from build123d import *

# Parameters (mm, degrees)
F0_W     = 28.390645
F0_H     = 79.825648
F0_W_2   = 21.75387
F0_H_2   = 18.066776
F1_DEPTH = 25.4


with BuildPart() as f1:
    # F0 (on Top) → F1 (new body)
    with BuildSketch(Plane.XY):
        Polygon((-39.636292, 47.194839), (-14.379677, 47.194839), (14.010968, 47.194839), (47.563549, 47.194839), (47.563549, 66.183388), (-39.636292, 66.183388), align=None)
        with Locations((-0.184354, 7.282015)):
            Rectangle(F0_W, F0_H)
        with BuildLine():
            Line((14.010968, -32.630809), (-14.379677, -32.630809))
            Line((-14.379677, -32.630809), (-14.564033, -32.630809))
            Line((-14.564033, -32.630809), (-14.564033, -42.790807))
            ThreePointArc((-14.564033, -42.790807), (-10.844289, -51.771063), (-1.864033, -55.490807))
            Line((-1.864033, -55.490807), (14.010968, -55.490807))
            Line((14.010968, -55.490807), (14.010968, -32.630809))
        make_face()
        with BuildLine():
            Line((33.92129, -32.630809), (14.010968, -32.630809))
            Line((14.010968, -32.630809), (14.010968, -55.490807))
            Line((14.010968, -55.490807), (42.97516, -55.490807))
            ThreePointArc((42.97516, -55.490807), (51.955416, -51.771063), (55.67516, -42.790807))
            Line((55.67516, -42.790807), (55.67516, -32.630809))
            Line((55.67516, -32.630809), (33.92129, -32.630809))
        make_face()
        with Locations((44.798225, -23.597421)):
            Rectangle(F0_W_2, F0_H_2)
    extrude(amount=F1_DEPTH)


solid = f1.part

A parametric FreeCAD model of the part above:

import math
import FreeCAD as App
import Part
import Sketcher
from FreeCAD import Vector
Q = App.Units.Quantity

doc = App.newDocument("Part")
params = doc.addObject("Spreadsheet::Sheet", "Params")
for row, (alias, value) in enumerate([
    ("sketch1_radius", "0.5 in"),
    ("sketch1_height", "0.3999999 in"),
    ("pad1_length", "1 in"),
], start=1):
    params.set(f"A{row}", alias)
    params.set(f"B{row}", "=" + value)
    params.setAlias(f"B{row}", alias)

body = doc.addObject("PartDesign::Body", "Body")

# Sketch on XY plane
sketch1 = body.newObject("Sketcher::SketchObject", "Sketch")
sketch1.AttachmentSupport = (doc.getObject("XY_Plane"), [""])
sketch1.MapMode = "FlatFace"
sketch1.addGeometry(Part.LineSegment(Vector(-39.64, 47.19, 0), Vector(-14.38, 47.19, 0)), False)
sketch1.addGeometry(Part.LineSegment(Vector(-14.38, 47.19, 0), Vector(-14.38, -32.63, 0)), False)
sketch1.addGeometry(Part.LineSegment(Vector(-14.38, -32.63, 0), Vector(-14.56, -32.63, 0)), False)
sketch1.addGeometry(Part.LineSegment(Vector(-14.56, -32.63, 0), Vector(-14.56, -42.79, 0)), False)
sketch1.addGeometry(Part.ArcOfCircle(Part.Circle(Vector(-1.86, -42.79, 0), Vector(0, 0, 1), 12.7), math.radians(-180), math.radians(-90)), False)
sketch1.addGeometry(Part.LineSegment(Vector(-1.86, -55.49, 0), Vector(42.98, -55.49, 0)), False)
sketch1.addGeometry(Part.ArcOfCircle(Part.Circle(Vector(42.98, -42.79, 0), Vector(0, 0, 1), 12.7), math.radians(-90), math.radians(0)), False)
sketch1.addGeometry(Part.LineSegment(Vector(55.68, -42.79, 0), Vector(55.68, -14.56, 0)), False)
sketch1.addGeometry(Part.LineSegment(Vector(55.68, -14.56, 0), Vector(33.92, -14.56, 0)), False)
sketch1.addGeometry(Part.LineSegment(Vector(33.92, -14.56, 0), Vector(33.92, -32.63, 0)), False)
sketch1.addGeometry(Part.LineSegment(Vector(33.92, -32.63, 0), Vector(14.01, -32.63, 0)), False)
sketch1.addGeometry(Part.LineSegment(Vector(14.01, -32.63, 0), Vector(14.01, 47.19, 0)), False)
sketch1.addGeometry(Part.LineSegment(Vector(14.01, 47.19, 0), Vector(47.56, 47.19, 0)), False)
sketch1.addGeometry(Part.LineSegment(Vector(47.56, 47.19, 0), Vector(47.56, 66.18, 0)), False)
sketch1.addGeometry(Part.LineSegment(Vector(47.56, 66.18, 0), Vector(-39.64, 66.18, 0)), False)
sketch1.addGeometry(Part.LineSegment(Vector(-39.64, 66.18, 0), Vector(-39.64, 47.19, 0)), False)
sketch1.addConstraint(Sketcher.Constraint("Coincident", 0, 2, 1, 1))
sketch1.addConstraint(Sketcher.Constraint("Coincident", 1, 2, 2, 1))
sketch1.addConstraint(Sketcher.Constraint("Coincident", 2, 2, 3, 1))
sketch1.addConstraint(Sketcher.Constraint("Tangent", 3, 2, 4, 1))
sketch1.addConstraint(Sketcher.Constraint("Tangent", 4, 2, 5, 1))
sketch1.addConstraint(Sketcher.Constraint("Tangent", 5, 2, 6, 1))
sketch1.addConstraint(Sketcher.Constraint("Tangent", 6, 2, 7, 1))
sketch1.addConstraint(Sketcher.Constraint("Coincident", 7, 2, 8, 1))
sketch1.addConstraint(Sketcher.Constraint("Coincident", 8, 2, 9, 1))
sketch1.addConstraint(Sketcher.Constraint("Coincident", 9, 2, 10, 1))
sketch1.addConstraint(Sketcher.Constraint("Coincident", 10, 2, 11, 1))
sketch1.addConstraint(Sketcher.Constraint("Coincident", 11, 2, 12, 1))
sketch1.addConstraint(Sketcher.Constraint("Coincident", 12, 2, 13, 1))
sketch1.addConstraint(Sketcher.Constraint("Coincident", 13, 2, 14, 1))
sketch1.addConstraint(Sketcher.Constraint("Coincident", 14, 2, 15, 1))
sketch1.addConstraint(Sketcher.Constraint("Coincident", 15, 2, 0, 1))
sketch1.addConstraint(Sketcher.Constraint("Horizontal", 0))
sketch1.addConstraint(Sketcher.Constraint("Vertical", 1))
sketch1.addConstraint(Sketcher.Constraint("Horizontal", 2))
sketch1.addConstraint(Sketcher.Constraint("Vertical", 3))
sketch1.addConstraint(Sketcher.Constraint("Horizontal", 5))
sketch1.addConstraint(Sketcher.Constraint("Vertical", 7))
sketch1.addConstraint(Sketcher.Constraint("Horizontal", 8))
sketch1.addConstraint(Sketcher.Constraint("Vertical", 9))
sketch1.addConstraint(Sketcher.Constraint("Horizontal", 10))
sketch1.addConstraint(Sketcher.Constraint("Vertical", 11))
sketch1.addConstraint(Sketcher.Constraint("Horizontal", 12))
sketch1.addConstraint(Sketcher.Constraint("Vertical", 13))
sketch1.addConstraint(Sketcher.Constraint("Horizontal", 14))
sketch1.addConstraint(Sketcher.Constraint("Vertical", 15))
sketch1.addConstraint(Sketcher.Constraint("Equal", 4, 6))
sketch1.addConstraint(Sketcher.Constraint("Horizontal", 2, 2, 9, 2))
sketch1.addConstraint(Sketcher.Constraint("Horizontal", 0, 2, 11, 2))
sketch1.addConstraint(Sketcher.Constraint("Radius", 4, Q("0.5 in")))
sketch1.addConstraint(Sketcher.Constraint("DistanceY", 3, 2, 3, 1, Q("0.3999999 in")))
sketch1.addConstraint(Sketcher.Constraint("DistanceX", 4, 3, 10, 2, Q("0.625 in")))
sketch1.addConstraint(Sketcher.Constraint("DistanceX", 8, 2, 8, 1, 21.75387))
sketch1.addConstraint(Sketcher.Constraint("DistanceX", 10, 2, 10, 1, 19.910321))
sketch1.addConstraint(Sketcher.Constraint("DistanceX", 12, 1, 12, 2, 33.552581))
sketch1.addConstraint(Sketcher.Constraint("DistanceX", 14, 2, 14, 1, 87.199841))
sketch1.addConstraint(Sketcher.Constraint("DistanceY", 1, 2, 1, 1, 79.825648))
sketch1.addConstraint(Sketcher.Constraint("DistanceY", 13, 1, 13, 2, 18.988549))
sketch1.addConstraint(Sketcher.Constraint("DistanceX", 0, 1, 0, 2, 25.256615))
sketch1.addConstraint(Sketcher.Constraint("DistanceY", 7, 1, 7, 2, 28.226774))
sketch1.addConstraint(Sketcher.Constraint("DistanceX", -1, 1, 6, 3, 42.97516))
sketch1.addConstraint(Sketcher.Constraint("DistanceY", -1, 1, 0, 2, 47.194839))
sketch1.setExpression("Constraints[33]", "Params.sketch1_radius")
sketch1.setExpression("Constraints[34]", "Params.sketch1_height")
pad1 = body.newObject("PartDesign::Pad", "Pad")
pad1.Profile = sketch1
pad1.setExpression("Length", "Params.pad1_length")

doc.recompute()
